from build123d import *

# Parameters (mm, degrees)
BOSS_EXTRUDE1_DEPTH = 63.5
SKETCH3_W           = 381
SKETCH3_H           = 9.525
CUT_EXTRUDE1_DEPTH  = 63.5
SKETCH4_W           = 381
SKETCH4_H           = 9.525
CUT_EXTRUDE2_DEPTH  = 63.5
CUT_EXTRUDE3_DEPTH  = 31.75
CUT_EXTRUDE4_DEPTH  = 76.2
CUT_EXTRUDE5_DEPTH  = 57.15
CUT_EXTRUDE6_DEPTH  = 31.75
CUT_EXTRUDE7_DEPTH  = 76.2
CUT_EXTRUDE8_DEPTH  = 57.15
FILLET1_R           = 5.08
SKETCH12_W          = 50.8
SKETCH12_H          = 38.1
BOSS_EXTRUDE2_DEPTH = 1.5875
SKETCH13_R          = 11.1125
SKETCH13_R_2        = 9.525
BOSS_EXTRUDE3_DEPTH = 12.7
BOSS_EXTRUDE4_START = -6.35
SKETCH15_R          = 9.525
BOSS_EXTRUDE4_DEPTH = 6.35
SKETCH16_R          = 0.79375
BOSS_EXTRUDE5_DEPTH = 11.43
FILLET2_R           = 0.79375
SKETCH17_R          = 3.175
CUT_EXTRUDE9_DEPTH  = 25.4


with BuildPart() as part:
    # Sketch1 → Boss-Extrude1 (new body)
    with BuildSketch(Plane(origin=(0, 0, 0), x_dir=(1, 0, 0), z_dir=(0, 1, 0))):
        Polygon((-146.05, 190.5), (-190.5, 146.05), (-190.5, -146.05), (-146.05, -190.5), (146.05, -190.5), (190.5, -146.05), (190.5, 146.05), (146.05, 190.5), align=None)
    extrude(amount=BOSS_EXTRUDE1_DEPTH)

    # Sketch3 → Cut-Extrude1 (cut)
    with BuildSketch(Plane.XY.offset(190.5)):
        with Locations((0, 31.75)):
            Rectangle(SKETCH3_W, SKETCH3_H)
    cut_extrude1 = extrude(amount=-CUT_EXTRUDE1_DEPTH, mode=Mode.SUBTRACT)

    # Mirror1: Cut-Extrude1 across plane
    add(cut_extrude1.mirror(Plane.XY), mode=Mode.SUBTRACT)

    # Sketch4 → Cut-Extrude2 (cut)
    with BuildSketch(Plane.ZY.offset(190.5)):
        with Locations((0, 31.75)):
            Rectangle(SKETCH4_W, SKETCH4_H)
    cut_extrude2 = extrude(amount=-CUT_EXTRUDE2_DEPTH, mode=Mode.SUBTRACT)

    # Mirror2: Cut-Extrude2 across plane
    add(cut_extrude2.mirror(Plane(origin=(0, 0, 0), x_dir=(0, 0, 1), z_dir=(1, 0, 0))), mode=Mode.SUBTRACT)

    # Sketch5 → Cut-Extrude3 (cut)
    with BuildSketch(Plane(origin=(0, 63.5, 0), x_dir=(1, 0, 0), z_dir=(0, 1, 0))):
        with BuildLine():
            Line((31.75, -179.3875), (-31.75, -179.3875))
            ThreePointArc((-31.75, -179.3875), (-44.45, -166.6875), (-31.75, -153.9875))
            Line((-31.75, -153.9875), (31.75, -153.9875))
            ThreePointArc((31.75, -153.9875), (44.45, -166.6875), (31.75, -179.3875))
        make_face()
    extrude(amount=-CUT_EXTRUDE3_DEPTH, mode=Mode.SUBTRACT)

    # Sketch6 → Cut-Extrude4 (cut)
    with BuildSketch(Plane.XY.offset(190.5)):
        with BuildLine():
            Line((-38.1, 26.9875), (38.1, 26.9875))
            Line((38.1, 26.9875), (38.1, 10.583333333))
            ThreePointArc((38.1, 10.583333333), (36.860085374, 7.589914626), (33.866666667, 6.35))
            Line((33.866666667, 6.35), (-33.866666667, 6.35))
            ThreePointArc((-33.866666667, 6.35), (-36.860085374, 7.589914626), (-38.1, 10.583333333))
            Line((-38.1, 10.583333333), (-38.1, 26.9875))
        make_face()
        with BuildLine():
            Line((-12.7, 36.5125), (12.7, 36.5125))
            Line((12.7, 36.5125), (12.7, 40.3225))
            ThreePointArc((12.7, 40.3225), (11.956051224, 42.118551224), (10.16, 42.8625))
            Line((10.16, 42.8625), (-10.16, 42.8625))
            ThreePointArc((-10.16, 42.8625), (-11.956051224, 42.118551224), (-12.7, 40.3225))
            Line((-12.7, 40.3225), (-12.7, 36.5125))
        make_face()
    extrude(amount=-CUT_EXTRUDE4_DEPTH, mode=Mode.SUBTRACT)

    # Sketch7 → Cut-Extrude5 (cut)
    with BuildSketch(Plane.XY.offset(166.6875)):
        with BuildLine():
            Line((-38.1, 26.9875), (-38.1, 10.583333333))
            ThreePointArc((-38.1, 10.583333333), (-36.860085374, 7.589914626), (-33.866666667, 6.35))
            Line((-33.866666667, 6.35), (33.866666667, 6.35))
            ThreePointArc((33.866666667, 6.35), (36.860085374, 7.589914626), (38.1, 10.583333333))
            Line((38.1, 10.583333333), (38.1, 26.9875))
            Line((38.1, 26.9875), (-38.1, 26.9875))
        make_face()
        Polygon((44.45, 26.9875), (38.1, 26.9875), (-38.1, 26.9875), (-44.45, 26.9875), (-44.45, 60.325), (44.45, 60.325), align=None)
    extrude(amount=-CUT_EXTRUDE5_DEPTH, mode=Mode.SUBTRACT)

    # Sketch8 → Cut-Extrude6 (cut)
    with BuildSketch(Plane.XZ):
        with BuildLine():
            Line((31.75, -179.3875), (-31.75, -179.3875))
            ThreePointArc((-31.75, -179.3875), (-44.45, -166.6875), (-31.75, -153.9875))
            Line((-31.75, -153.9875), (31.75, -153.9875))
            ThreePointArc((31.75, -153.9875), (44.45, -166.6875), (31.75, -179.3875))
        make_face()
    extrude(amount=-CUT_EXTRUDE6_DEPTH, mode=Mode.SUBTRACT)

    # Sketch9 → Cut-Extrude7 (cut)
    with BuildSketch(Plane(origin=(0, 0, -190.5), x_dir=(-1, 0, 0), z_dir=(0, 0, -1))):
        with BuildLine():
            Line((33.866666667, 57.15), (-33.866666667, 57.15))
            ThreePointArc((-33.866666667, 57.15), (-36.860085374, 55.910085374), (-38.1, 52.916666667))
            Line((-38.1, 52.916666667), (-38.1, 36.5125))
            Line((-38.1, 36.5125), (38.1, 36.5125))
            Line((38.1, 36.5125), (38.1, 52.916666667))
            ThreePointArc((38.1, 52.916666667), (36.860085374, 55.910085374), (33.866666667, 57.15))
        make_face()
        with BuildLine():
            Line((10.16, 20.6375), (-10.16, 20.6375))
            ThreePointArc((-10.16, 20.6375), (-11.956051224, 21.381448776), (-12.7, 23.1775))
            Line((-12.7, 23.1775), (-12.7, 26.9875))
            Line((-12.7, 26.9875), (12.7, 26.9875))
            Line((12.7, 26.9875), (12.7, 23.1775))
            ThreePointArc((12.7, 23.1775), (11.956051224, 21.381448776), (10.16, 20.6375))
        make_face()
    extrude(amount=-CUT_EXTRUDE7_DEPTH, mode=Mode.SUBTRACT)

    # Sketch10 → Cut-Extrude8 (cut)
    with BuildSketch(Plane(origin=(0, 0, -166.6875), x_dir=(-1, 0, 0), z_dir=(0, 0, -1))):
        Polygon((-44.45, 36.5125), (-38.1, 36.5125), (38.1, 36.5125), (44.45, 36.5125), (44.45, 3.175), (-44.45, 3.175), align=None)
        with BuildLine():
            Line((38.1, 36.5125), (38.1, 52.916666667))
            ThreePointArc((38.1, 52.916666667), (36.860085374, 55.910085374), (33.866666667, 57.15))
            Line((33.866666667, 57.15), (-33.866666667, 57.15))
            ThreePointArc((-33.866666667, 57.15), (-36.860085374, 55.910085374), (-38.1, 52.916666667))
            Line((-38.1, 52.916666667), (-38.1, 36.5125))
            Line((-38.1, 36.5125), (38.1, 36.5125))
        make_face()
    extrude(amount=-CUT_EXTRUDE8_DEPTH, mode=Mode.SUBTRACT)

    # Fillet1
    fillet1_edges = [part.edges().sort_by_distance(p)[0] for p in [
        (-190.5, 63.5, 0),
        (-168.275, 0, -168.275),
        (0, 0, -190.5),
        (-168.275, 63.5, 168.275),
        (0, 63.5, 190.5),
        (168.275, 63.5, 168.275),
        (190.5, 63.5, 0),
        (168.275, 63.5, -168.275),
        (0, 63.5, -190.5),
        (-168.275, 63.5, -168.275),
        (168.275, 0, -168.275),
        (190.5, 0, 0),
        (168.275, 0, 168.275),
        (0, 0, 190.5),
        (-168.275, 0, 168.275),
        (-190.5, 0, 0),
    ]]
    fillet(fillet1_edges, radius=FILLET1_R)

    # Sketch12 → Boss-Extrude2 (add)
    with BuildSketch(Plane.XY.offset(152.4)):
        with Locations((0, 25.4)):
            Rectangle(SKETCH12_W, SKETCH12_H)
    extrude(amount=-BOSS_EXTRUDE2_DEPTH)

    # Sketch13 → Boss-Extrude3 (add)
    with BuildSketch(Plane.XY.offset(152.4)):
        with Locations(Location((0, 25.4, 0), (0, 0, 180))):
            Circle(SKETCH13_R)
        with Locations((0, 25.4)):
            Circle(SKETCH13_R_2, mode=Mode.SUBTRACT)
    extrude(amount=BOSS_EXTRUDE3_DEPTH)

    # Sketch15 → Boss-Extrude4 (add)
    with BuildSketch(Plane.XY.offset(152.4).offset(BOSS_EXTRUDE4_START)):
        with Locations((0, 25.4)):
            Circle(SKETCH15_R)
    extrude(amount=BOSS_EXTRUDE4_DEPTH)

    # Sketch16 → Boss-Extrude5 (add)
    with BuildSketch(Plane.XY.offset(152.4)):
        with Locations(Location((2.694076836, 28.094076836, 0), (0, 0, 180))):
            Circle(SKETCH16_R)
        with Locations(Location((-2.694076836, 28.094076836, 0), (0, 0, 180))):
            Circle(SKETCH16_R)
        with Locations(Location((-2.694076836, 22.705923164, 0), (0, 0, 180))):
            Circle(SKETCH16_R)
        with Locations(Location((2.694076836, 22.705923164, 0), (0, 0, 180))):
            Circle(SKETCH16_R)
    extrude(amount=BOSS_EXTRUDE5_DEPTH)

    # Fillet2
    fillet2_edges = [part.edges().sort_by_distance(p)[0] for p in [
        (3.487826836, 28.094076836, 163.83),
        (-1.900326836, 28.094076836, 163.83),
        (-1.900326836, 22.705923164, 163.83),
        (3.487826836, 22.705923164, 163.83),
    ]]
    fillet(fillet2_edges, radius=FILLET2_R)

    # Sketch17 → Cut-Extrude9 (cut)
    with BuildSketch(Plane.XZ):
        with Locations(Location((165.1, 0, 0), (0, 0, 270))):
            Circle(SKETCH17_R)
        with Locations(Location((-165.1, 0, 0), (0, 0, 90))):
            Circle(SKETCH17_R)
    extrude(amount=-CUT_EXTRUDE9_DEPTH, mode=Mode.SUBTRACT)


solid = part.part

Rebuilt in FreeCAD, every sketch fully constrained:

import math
import FreeCAD as App
import Part
import Sketcher
Q = App.Units.Quantity


def edges_at(feature, points):
    """Names of the edges that pass closest to the given points."""
    edges = feature.Shape.Edges
    near = lambda p: min(range(len(edges)), key=lambda i: edges[i].distToShape(Part.Vertex(*p))[0])
    return sorted({f"Edge{near(p) + 1}" for p in points})


def add_polygon(sketch, points):
    """Adds a closed chain of lines whose ends are joined by coincident constraints."""
    first, n = sketch.GeometryCount, len(points)
    for a, b in zip(points, points[1:] + points[:1]):
        sketch.addGeometry(Part.LineSegment(App.Vector(*a, 0), App.Vector(*b, 0)), False)
    for i in range(n):
        sketch.addConstraint(Sketcher.Constraint("Coincident", first + i, 2, first + (i + 1) % n, 1))

doc = App.newDocument("Part")
params = doc.addObject("Spreadsheet::Sheet", "Params")
for row, (alias, value) in enumerate([
    ("sketch1_width", "11.5 in"),
    ("pad1_length", "2.5 in"),
    ("sketch2_width", "15 in"),
    ("sketch2_height", "0.375 in"),
    ("pocket1_length", "2.5 in"),
    ("sketch3_height", "15 in"),
    ("sketch3_width", "0.375 in"),
    ("pocket2_length", "2.5 in"),
    ("sketch4_radius", "0.5 in"),
    ("sketch4_width", "2.5 in"),
    ("pocket3_length", "1.25 in"),
    ("sketch5_radius", "0.1 in"),
    ("sketch5_width", "3 in"),
    ("sketch5_width2", "1 in"),
    ("sketch5_height", "0.15 in"),
    ("pocket4_length", "3 in"),
    ("sketch6_width", "3.5 in"),
    ("sketch6_height", "1.3125 in"),
    ("pocket5_length", "2.25 in"),
    ("sketch7_radius", "0.5 in"),
    ("sketch7_width", "2.5 in"),
    ("pocket6_length", "1.25 in"),
    ("sketch8_radius", "0.1 in"),
    ("sketch8_width", "3 in"),
    ("sketch8_width2", "1 in"),
    ("sketch8_height", "0.15 in"),
    ("pocket7_length", "3 in"),
    ("sketch9_width", "3.5 in"),
    ("sketch9_height", "1.3125 in"),
    ("pocket8_length", "2.25 in"),
    ("fillet_radius", "0.2 in"),
    ("sketch10_width", "2 in"),
    ("sketch10_height", "1.5 in"),
    ("pad2_length", "0.0625 in"),
    ("sketch11_diameter", "0.75 in"),
    ("sketch11_diameter2", "0.875 in"),
    ("pad3_length", "0.5 in"),
    ("sketch12_diameter", "0.75 in"),
    ("pad4_length", "0.25 in"),
    ("sketch13_diameter", "0.0625 in"),
    ("pad5_length", "0.45 in"),
    ("fillet2_radius", "0.03125 in"),
    ("sketch14_diameter", "0.25 in"),
    ("pocket9_length", "1 in"),
], start=1):
    params.set(f"A{row}", alias)
    params.set(f"B{row}", "=" + value)
    params.setAlias(f"B{row}", alias)

body = doc.addObject("PartDesign::Body", "Body")

sketch1 = doc.addObject("Sketcher::SketchObject", "Sketch")
body.addObject(sketch1)
sketch1.AttachmentSupport = (doc.XZ_Plane, [""])
sketch1.MapMode = "FlatFace"
add_polygon(sketch1, [(-146, -190), (-190, -146), (-190, 146), (-146, 190), (146, 190), (190, 146), (190, -146), (146, -190)])
sketch1.addConstraint([
    Sketcher.Constraint("Vertical", 1),
    Sketcher.Constraint("Horizontal", 3),
    Sketcher.Constraint("Vertical", 5),
    Sketcher.Constraint("Horizontal", 7),
    Sketcher.Constraint("Symmetric", 0, 2, 4, 2, -1, 1),
    Sketcher.Constraint("Symmetric", 2, 2, 6, 2, -1, 1),
    Sketcher.Constraint("Perpendicular", 0, 2),
    Sketcher.Constraint("Perpendicular", 2, 4),
    Sketcher.Constraint("Perpendicular", 4, 6),
    Sketcher.Constraint("Horizontal", 1, 2, 4, 2),
    Sketcher.Constraint("Vertical", 3, 2, 6, 2),
    Sketcher.Constraint("Equal", 7, 1),
    Sketcher.Constraint("DistanceX", 3, 1, 3, 2, Q("11.5 in")),
    Sketcher.Constraint("DistanceX", 1, 2, 4, 2, Q("15 in")),
])
sketch1.setExpression("Constraints[20]", "Params.sketch1_width")
pad1 = doc.addObject("PartDesign::Pad", "Pad")
body.addObject(pad1)
pad1.Profile = sketch1
pad1.setExpression("Length", "Params.pad1_length")
pad1.Reversed = True

sketch2 = doc.addObject("Sketcher::SketchObject", "Sketch001")
body.addObject(sketch2)
sketch2.AttachmentSupport = (doc.XY_Plane, [""])
sketch2.MapMode = "FlatFace"
sketch2.AttachmentOffset = App.Placement(App.Vector(0, 0, 7.5 * 25.4), App.Rotation())
add_polygon(sketch2, [(-190, 37), (-190, 27), (190, 27), (190, 37)])
sketch2.addConstraint([
    Sketcher.Constraint("Vertical", 0),
    Sketcher.Constraint("Horizontal", 1),
    Sketcher.Constraint("Vertical", 2),
    Sketcher.Constraint("Horizontal", 3),
    Sketcher.Constraint("DistanceX", 1, 1, 1, 2, Q("15 in")),
    Sketcher.Constraint("DistanceX", 0, 2, -1, 1, Q("7.5 in")),
    Sketcher.Constraint("DistanceY", 0, 2, 0, 1, Q("0.375 in")),
    Sketcher.Constraint("DistanceY", -1, 1, 0, 2, Q("1.0625 in")),
])
sketch2.setExpression("Constraints[8]", "Params.sketch2_width")
sketch2.setExpression("Constraints[10]", "Params.sketch2_height")
pocket1 = doc.addObject("PartDesign::Pocket", "Pocket")
body.addObject(pocket1)
pocket1.Profile = sketch2
pocket1.setExpression("Length", "Params.pocket1_length")
doc.recompute()

mirrored = doc.addObject("PartDesign::Mirrored", "Mirrored")
body.addObject(mirrored)
mirrored.Originals = [pocket1]
mirrored.MirrorPlane = (doc.XY_Plane, [""])
body.Tip = mirrored

sketch3 = doc.addObject("Sketcher::SketchObject", "Sketch002")
body.addObject(sketch3)
sketch3.AttachmentSupport = (doc.YZ_Plane, [""])
sketch3.MapMode = "FlatFace"
sketch3.AttachmentOffset = App.Placement(App.Vector(0, 0, -7.5 * 25.4), App.Rotation())
add_polygon(sketch3, [(37, -190), (27, -190), (27, 190), (37, 190)])
sketch3.addConstraint([
    Sketcher.Constraint("Horizontal", 0),
    Sketcher.Constraint("Vertical", 1),
    Sketcher.Constraint("Horizontal", 2),
    Sketcher.Constraint("Vertical", 3),
    Sketcher.Constraint("DistanceY", 1, 1, 1, 2, Q("15 in")),
    Sketcher.Constraint("DistanceY", 0, 2, -1, 1, Q("7.5 in")),
    Sketcher.Constraint("DistanceX", 0, 2, 0, 1, Q("0.375 in")),
    Sketcher.Constraint("DistanceX", -1, 1, 0, 2, Q("1.0625 in")),
])
sketch3.setExpression("Constraints[8]", "Params.sketch3_height")
sketch3.setExpression("Constraints[10]", "Params.sketch3_width")
pocket2 = doc.addObject("PartDesign::Pocket", "Pocket001")
body.addObject(pocket2)
pocket2.Profile = sketch3
pocket2.setExpression("Length", "Params.pocket2_length")
pocket2.Reversed = True
doc.recompute()

mirrored2 = doc.addObject("PartDesign::Mirrored", "Mirrored001")
body.addObject(mirrored2)
mirrored2.Originals = [pocket2]
mirrored2.MirrorPlane = (doc.YZ_Plane, [""])
body.Tip = mirrored2

sketch4 = doc.addObject("Sketcher::SketchObject", "Sketch003")
body.addObject(sketch4)
sketch4.AttachmentSupport = (doc.XZ_Plane, [""])
sketch4.MapMode = "FlatFace"
sketch4.AttachmentOffset = App.Placement(App.Vector(0, 0, -2.5 * 25.4), App.Rotation())
sketch4.addGeometry([
    Part.LineSegment(App.Vector(-32, 179, 0), App.Vector(32, 179, 0)),
    Part.ArcOfCircle(Part.Circle(App.Vector(32, 167, 0), App.Vector(0, 0, 1), 13), math.radians(-90), math.radians(90)),
    Part.LineSegment(App.Vector(32, 154, 0), App.Vector(-32, 154, 0)),
    Part.ArcOfCircle(Part.Circle(App.Vector(-32, 167, 0), App.Vector(0, 0, 1), 13), math.radians(90), math.radians(270)),
], False)
sketch4.addConstraint([
    Sketcher.Constraint("Tangent", 0, 2, 1, 2),
    Sketcher.Constraint("Tangent", 1, 1, 2, 1),
    Sketcher.Constraint("Tangent", 2, 2, 3, 2),
    Sketcher.Constraint("Tangent", 3, 1, 0, 1),
    Sketcher.Constraint("Horizontal", 0),
    Sketcher.Constraint("Horizontal", 2),
    Sketcher.Constraint("Radius", 1, Q("0.5 in")),
    Sketcher.Constraint("DistanceX", 0, 1, 0, 2, Q("2.5 in")),
    Sketcher.Constraint("DistanceX", -1, 1, 1, 3, Q("1.25 in")),
    Sketcher.Constraint("DistanceY", -1, 1, 1, 3, Q("6.5625 in")),
])
sketch4.setExpression("Constraints[6]", "Params.sketch4_radius")
sketch4.setExpression("Constraints[7]", "Params.sketch4_width")
pocket3 = doc.addObject("PartDesign::Pocket", "Pocket002")
body.addObject(pocket3)
pocket3.Profile = sketch4
pocket3.setExpression("Length", "Params.pocket3_length")
pocket3.Reversed = True

sketch5 = doc.addObject("Sketcher::SketchObject", "Sketch004")
body.addObject(sketch5)
sketch5.AttachmentSupport = (doc.XY_Plane, [""])
sketch5.MapMode = "FlatFace"
sketch5.AttachmentOffset = App.Placement(App.Vector(0, 0, 7.5 * 25.4), App.Rotation())
sketch5.addGeometry([
    Part.LineSegment(App.Vector(38.1, 27, 0), App.Vector(-38.1, 27, 0)),
    Part.LineSegment(App.Vector(-38.1, 27, 0), App.Vector(-38.1, 10.6, 0)),
    Part.ArcOfCircle(Part.Circle(App.Vector(-33.9, 10.6, 0), App.Vector(0, 0, 1), 4.2), math.radians(180), math.radians(270)),
    Part.LineSegment(App.Vector(-33.9, 6.3, 0), App.Vector(33.9, 6.3, 0)),
    Part.ArcOfCircle(Part.Circle(App.Vector(33.9, 10.6, 0), App.Vector(0, 0, 1), 4.2), math.radians(-90), math.radians(0)),
    Part.LineSegment(App.Vector(38.1, 10.6, 0), App.Vector(38.1, 27, 0)),
    Part.LineSegment(App.Vector(-12.7, 36.5, 0), App.Vector(12.7, 36.5, 0)),
    Part.LineSegment(App.Vector(12.7, 36.5, 0), App.Vector(12.7, 40.3, 0)),
    Part.ArcOfCircle(Part.Circle(App.Vector(10.2, 40.3, 0), App.Vector(0, 0, 1), 2.5), math.radians(0), math.radians(90)),
    Part.LineSegment(App.Vector(10.2, 42.9, 0), App.Vector(-10.2, 42.9, 0)),
    Part.ArcOfCircle(Part.Circle(App.Vector(-10.2, 40.3, 0), App.Vector(0, 0, 1), 2.5), math.radians(90), math.radians(180)),
    Part.LineSegment(App.Vector(-12.7, 40.3, 0), App.Vector(-12.7, 36.5, 0)),
], False)
sketch5.addConstraint([
    Sketcher.Constraint("Coincident", 0, 2, 1, 1),
    Sketcher.Constraint("Tangent", 1, 2, 2, 1),
    Sketcher.Constraint("Tangent", 2, 2, 3, 1),
    Sketcher.Constraint("Tangent", 3, 2, 4, 1),
    Sketcher.Constraint("Tangent", 4, 2, 5, 1),
    Sketcher.Constraint("Coincident", 5, 2, 0, 1),
    Sketcher.Constraint("Coincident", 6, 2, 7, 1),
    Sketcher.Constraint("Tangent", 7, 2, 8, 1),
    Sketcher.Constraint("Tangent", 8, 2, 9, 1),
    Sketcher.Constraint("Tangent", 9, 2, 10, 1),
    Sketcher.Constraint("Tangent", 10, 2, 11, 1),
    Sketcher.Constraint("Coincident", 11, 2, 6, 1),
    Sketcher.Constraint("Horizontal", 0),
    Sketcher.Constraint("Vertical", 1),
    Sketcher.Constraint("Horizontal", 3),
    Sketcher.Constraint("Vertical", 5),
    Sketcher.Constraint("Horizontal", 6),
    Sketcher.Constraint("Vertical", 7),
    Sketcher.Constraint("Horizontal", 9),
    Sketcher.Constraint("Vertical", 11),
    Sketcher.Constraint("Equal", 2, 4),
    Sketcher.Constraint("Equal", 8, 10),
    Sketcher.Constraint("Radius", 8, Q("0.1 in")),
    Sketcher.Constraint("DistanceX", 0, 2, 0, 1, Q("3 in")),
    Sketcher.Constraint("DistanceX", 6, 1, 6, 2, Q("1 in")),
    Sketcher.Constraint("DistanceX", 6, 2, 5, 2, Q("1 in")),
    Sketcher.Constraint("DistanceY", 7, 1, 7, 2, Q("0.15 in")),
    Sketcher.Constraint("DistanceX", -1, 1, 8, 3, Q("0.4 in")),
    Sketcher.Constraint("DistanceY", -1, 1, 2, 2, Q("0.25 in")),
    Sketcher.Constraint("DistanceY", -1, 1, 0, 2, Q("1.0625 in")),
    Sketcher.Constraint("DistanceY", -1, 1, 6, 2, Q("1.4375 in")),
    Sketcher.Constraint("Radius", 2, 4.233333),
])
sketch5.setExpression("Constraints[22]", "Params.sketch5_radius")
sketch5.setExpression("Constraints[23]", "Params.sketch5_width")
sketch5.setExpression("Constraints[24]", "Params.sketch5_width2")
sketch5.setExpression("Constraints[26]", "Params.sketch5_height")
pocket4 = doc.addObject("PartDesign::Pocket", "Pocket003")
body.addObject(pocket4)
pocket4.Profile = sketch5
pocket4.setExpression("Length", "Params.pocket4_length")

sketch6 = doc.addObject("Sketcher::SketchObject", "Sketch005")
body.addObject(sketch6)
sketch6.AttachmentSupport = (doc.XY_Plane, [""])
sketch6.MapMode = "FlatFace"
sketch6.AttachmentOffset = App.Placement(App.Vector(0, 0, 6.5625 * 25.4), App.Rotation())
sketch6.addGeometry([
    Part.LineSegment(App.Vector(-38.1, 27, 0), App.Vector(-38.1, 10.6, 0)),
    Part.ArcOfCircle(Part.Circle(App.Vector(-33.9, 10.6, 0), App.Vector(0, 0, 1), 4.2), math.radians(180), math.radians(270)),
    Part.LineSegment(App.Vector(-33.9, 6.3, 0), App.Vector(33.9, 6.3, 0)),
    Part.ArcOfCircle(Part.Circle(App.Vector(33.9, 10.6, 0), App.Vector(0, 0, 1), 4.2), math.radians(-90), math.radians(0)),
    Part.LineSegment(App.Vector(38.1, 10.6, 0), App.Vector(38.1, 27, 0)),
    Part.LineSegment(App.Vector(38.1, 27, 0), App.Vector(44.5, 27, 0)),
    Part.LineSegment(App.Vector(44.5, 27, 0), App.Vector(44.5, 60.3, 0)),
    Part.LineSegment(App.Vector(44.5, 60.3, 0), App.Vector(-44.5, 60.3, 0)),
    Part.LineSegment(App.Vector(-44.5, 60.3, 0), App.Vector(-44.5, 27, 0)),
    Part.LineSegment(App.Vector(-44.5, 27, 0), App.Vector(-38.1, 27, 0)),
], False)
sketch6.addConstraint([
    Sketcher.Constraint("Tangent", 0, 2, 1, 1),
    Sketcher.Constraint("Tangent", 1, 2, 2, 1),
    Sketcher.Constraint("Tangent", 2, 2, 3, 1),
    Sketcher.Constraint("Tangent", 3, 2, 4, 1),
    Sketcher.Constraint("Coincident", 4, 2, 5, 1),
    Sketcher.Constraint("Coincident", 5, 2, 6, 1),
    Sketcher.Constraint("Coincident", 6, 2, 7, 1),
    Sketcher.Constraint("Coincident", 7, 2, 8, 1),
    Sketcher.Constraint("Coincident", 8, 2, 9, 1),
    Sketcher.Constraint("Coincident", 9, 2, 0, 1),
    Sketcher.Constraint("Vertical", 0),
    Sketcher.Constraint("Horizontal", 2),
    Sketcher.Constraint("Vertical", 4),
    Sketcher.Constraint("Horizontal", 5),
    Sketcher.Constraint("Vertical", 6),
    Sketcher.Constraint("Horizontal", 7),
    Sketcher.Constraint("Vertical", 8),
    Sketcher.Constraint("Horizontal", 9),
    Sketcher.Constraint("Equal", 1, 3),
    Sketcher.Constraint("Symmetric", 5, 2, 8, 2, -2),
    Sketcher.Constraint("Equal", 5, 9),
    Sketcher.Constraint("DistanceX", 7, 2, 7, 1, Q("3.5 in")),
    Sketcher.Constraint("DistanceX", 0, 2, 3, 2, Q("3 in")),
    Sketcher.Constraint("DistanceY", 6, 1, 6, 2, Q("1.3125 in")),
    Sketcher.Constraint("DistanceY", -1, 1, 1, 2, Q("0.25 in")),
    Sketcher.Constraint("DistanceY", -1, 1, 4, 2, Q("1.0625 in")),
    Sketcher.Constraint("Radius", 1, 4.233333),
])
sketch6.setExpression("Constraints[21]", "Params.sketch6_width")
sketch6.setExpression("Constraints[23]", "Params.sketch6_height")
pocket5 = doc.addObject("PartDesign::Pocket", "Pocket004")
body.addObject(pocket5)
pocket5.Profile = sketch6
pocket5.setExpression("Length", "Params.pocket5_length")

sketch7 = doc.addObject("Sketcher::SketchObject", "Sketch006")
body.addObject(sketch7)
sketch7.AttachmentSupport = (doc.XZ_Plane, [""])
sketch7.MapMode = "FlatFace"
sketch7.addGeometry([
    Part.LineSegment(App.Vector(-32, -179, 0), App.Vector(32, -179, 0)),
    Part.ArcOfCircle(Part.Circle(App.Vector(32, -167, 0), App.Vector(0, 0, 1), 13), math.radians(-90), math.radians(90)),
    Part.LineSegment(App.Vector(32, -154, 0), App.Vector(-32, -154, 0)),
    Part.ArcOfCircle(Part.Circle(App.Vector(-32, -167, 0), App.Vector(0, 0, 1), 13), math.radians(90), math.radians(270)),
], False)
sketch7.addConstraint([
    Sketcher.Constraint("Tangent", 0, 2, 1, 1),
    Sketcher.Constraint("Tangent", 1, 2, 2, 1),
    Sketcher.Constraint("Tangent", 2, 2, 3, 1),
    Sketcher.Constraint("Tangent", 3, 2, 0, 1),
    Sketcher.Constraint("Horizontal", 0),
    Sketcher.Constraint("Horizontal", 2),
    Sketcher.Constraint("Radius", 1, Q("0.5 in")),
    Sketcher.Constraint("DistanceX", 0, 1, 0, 2, Q("2.5 in")),
    Sketcher.Constraint("DistanceX", -1, 1, 1, 3, Q("1.25 in")),
    Sketcher.Constraint("DistanceY", 1, 3, -1, 1, Q("6.5625 in")),
])
sketch7.setExpression("Constraints[6]", "Params.sketch7_radius")
sketch7.setExpression("Constraints[7]", "Params.sketch7_width")
pocket6 = doc.addObject("PartDesign::Pocket", "Pocket005")
body.addObject(pocket6)
pocket6.Profile = sketch7
pocket6.setExpression("Length", "Params.pocket6_length")

sketch8 = doc.addObject("Sketcher::SketchObject", "Sketch007")
body.addObject(sketch8)
sketch8.AttachmentSupport = (doc.XY_Plane, [""])
sketch8.MapMode = "FlatFace"
sketch8.AttachmentOffset = App.Placement(App.Vector(0, 0, -7.5 * 25.4), App.Rotation())
sketch8.addGeometry([
    Part.LineSegment(App.Vector(-33.9, 57.1, 0), App.Vector(33.9, 57.1, 0)),
    Part.ArcOfCircle(Part.Circle(App.Vector(33.9, 52.9, 0), App.Vector(0, 0, 1), 4.2), math.radians(0), math.radians(90)),
    Part.LineSegment(App.Vector(38.1, 52.9, 0), App.Vector(38.1, 36.5, 0)),
    Part.LineSegment(App.Vector(38.1, 36.5, 0), App.Vector(-38.1, 36.5, 0)),
    Part.LineSegment(App.Vector(-38.1, 36.5, 0), App.Vector(-38.1, 52.9, 0)),
    Part.ArcOfCircle(Part.Circle(App.Vector(-33.9, 52.9, 0), App.Vector(0, 0, 1), 4.2), math.radians(90), math.radians(180)),
    Part.LineSegment(App.Vector(10.2, 20.6, 0), App.Vector(-10.2, 20.6, 0)),
    Part.ArcOfCircle(Part.Circle(App.Vector(-10.2, 23.2, 0), App.Vector(0, 0, 1), 2.5), math.radians(-180), math.radians(-90)),
    Part.LineSegment(App.Vector(-12.7, 23.2, 0), App.Vector(-12.7, 27, 0)),
    Part.LineSegment(App.Vector(-12.7, 27, 0), App.Vector(12.7, 27, 0)),
    Part.LineSegment(App.Vector(12.7, 27, 0), App.Vector(12.7, 23.2, 0)),
    Part.ArcOfCircle(Part.Circle(App.Vector(10.2, 23.2, 0), App.Vector(0, 0, 1), 2.5), math.radians(-90), math.radians(0)),
], False)
sketch8.addConstraint([
    Sketcher.Constraint("Tangent", 0, 2, 1, 2),
    Sketcher.Constraint("Tangent", 1, 1, 2, 1),
    Sketcher.Constraint("Coincident", 2, 2, 3, 1),
    Sketcher.Constraint("Coincident", 3, 2, 4, 1),
    Sketcher.Constraint("Tangent", 4, 2, 5, 2),
    Sketcher.Constraint("Tangent", 5, 1, 0, 1),
    Sketcher.Constraint("Tangent", 6, 2, 7, 2),
    Sketcher.Constraint("Tangent", 7, 1, 8, 1),
    Sketcher.Constraint("Coincident", 8, 2, 9, 1),
    Sketcher.Constraint("Coincident", 9, 2, 10, 1),
    Sketcher.Constraint("Tangent", 10, 2, 11, 2),
    Sketcher.Constraint("Tangent", 11, 1, 6, 1),
    Sketcher.Constraint("Horizontal", 0),
    Sketcher.Constraint("Vertical", 2),
    Sketcher.Constraint("Horizontal", 3),
    Sketcher.Constraint("Vertical", 4),
    Sketcher.Constraint("Horizontal", 6),
    Sketcher.Constraint("Vertical", 8),
    Sketcher.Constraint("Horizontal", 9),
    Sketcher.Constraint("Vertical", 10),
    Sketcher.Constraint("Equal", 1, 5),
    Sketcher.Constraint("Equal", 7, 11),
    Sketcher.Constraint("Radius", 7, Q("0.1 in")),
    Sketcher.Constraint("DistanceX", 3, 2, 3, 1, Q("3 in")),
    Sketcher.Constraint("DistanceX", 9, 1, 9, 2, Q("1 in")),
    Sketcher.Constraint("DistanceX", 3, 2, 7, 1, Q("1 in")),
    Sketcher.Constraint("DistanceY", 8, 1, 8, 2, Q("0.15 in")),
    Sketcher.Constraint("DistanceX", 7, 3, -1, 1, Q("0.4 in")),
    Sketcher.Constraint("DistanceY", -1, 1, 0, 2, Q("2.25 in")),
    Sketcher.Constraint("DistanceY", -1, 1, 2, 2, Q("1.4375 in")),
    Sketcher.Constraint("DistanceY", -1, 1, 6, 2, Q("0.8125 in")),
    Sketcher.Constraint("Radius", 1, 4.233333),
])
sketch8.setExpression("Constraints[22]", "Params.sketch8_radius")
sketch8.setExpression("Constraints[23]", "Params.sketch8_width")
sketch8.setExpression("Constraints[24]", "Params.sketch8_width2")
sketch8.setExpression("Constraints[26]", "Params.sketch8_height")
pocket7 = doc.addObject("PartDesign::Pocket", "Pocket006")
body.addObject(pocket7)
pocket7.Profile = sketch8
pocket7.setExpression("Length", "Params.pocket7_length")
pocket7.Reversed = True

sketch9 = doc.addObject("Sketcher::SketchObject", "Sketch008")
body.addObject(sketch9)
sketch9.AttachmentSupport = (doc.XY_Plane, [""])
sketch9.MapMode = "FlatFace"
sketch9.AttachmentOffset = App.Placement(App.Vector(0, 0, -6.5625 * 25.4), App.Rotation())
sketch9.addGeometry([
    Part.LineSegment(App.Vector(-44.5, 36.5, 0), App.Vector(-38.1, 36.5, 0)),
    Part.LineSegment(App.Vector(-38.1, 36.5, 0), App.Vector(-38.1, 52.9, 0)),
    Part.ArcOfCircle(Part.Circle(App.Vector(-33.9, 52.9, 0), App.Vector(0, 0, 1), 4.2), math.radians(90), math.radians(180)),
    Part.LineSegment(App.Vector(-33.9, 57.1, 0), App.Vector(33.9, 57.1, 0)),
    Part.ArcOfCircle(Part.Circle(App.Vector(33.9, 52.9, 0), App.Vector(0, 0, 1), 4.2), math.radians(0), math.radians(90)),
    Part.LineSegment(App.Vector(38.1, 52.9, 0), App.Vector(38.1, 36.5, 0)),
    Part.LineSegment(App.Vector(38.1, 36.5, 0), App.Vector(44.5, 36.5, 0)),
    Part.LineSegment(App.Vector(44.5, 36.5, 0), App.Vector(44.5, 3.2, 0)),
    Part.LineSegment(App.Vector(44.5, 3.2, 0), App.Vector(-44.5, 3.2, 0)),
    Part.LineSegment(App.Vector(-44.5, 3.2, 0), App.Vector(-44.5, 36.5, 0)),
], False)
sketch9.addConstraint([
    Sketcher.Constraint("Coincident", 0, 2, 1, 1),
    Sketcher.Constraint("Tangent", 1, 2, 2, 2),
    Sketcher.Constraint("Tangent", 2, 1, 3, 1),
    Sketcher.Constraint("Tangent", 3, 2, 4, 2),
    Sketcher.Constraint("Tangent", 4, 1, 5, 1),
    Sketcher.Constraint("Coincident", 5, 2, 6, 1),
    Sketcher.Constraint("Coincident", 6, 2, 7, 1),
    Sketcher.Constraint("Coincident", 7, 2, 8, 1),
    Sketcher.Constraint("Coincident", 8, 2, 9, 1),
    Sketcher.Constraint("Coincident", 9, 2, 0, 1),
    Sketcher.Constraint("Horizontal", 0),
    Sketcher.Constraint("Vertical", 1),
    Sketcher.Constraint("Horizontal", 3),
    Sketcher.Constraint("Vertical", 5),
    Sketcher.Constraint("Horizontal", 6),
    Sketcher.Constraint("Vertical", 7),
    Sketcher.Constraint("Horizontal", 8),
    Sketcher.Constraint("Vertical", 9),
    Sketcher.Constraint("Equal", 2, 4),
    Sketcher.Constraint("Symmetric", 0, 2, 5, 2, -2),
    Sketcher.Constraint("Equal", 0, 6),
    Sketcher.Constraint("DistanceX", 8, 2, 8, 1, Q("3.5 in")),
    Sketcher.Constraint("DistanceX", 1, 2, 4, 1, Q("3 in")),
    Sketcher.Constraint("DistanceY", 7, 2, 7, 1, Q("1.3125 in")),
    Sketcher.Constraint("DistanceY", -1, 1, 2, 1, Q("2.25 in")),
    Sketcher.Constraint("DistanceY", -1, 1, 0, 2, Q("1.4375 in")),
    Sketcher.Constraint("Radius", 2, 4.233333),
])
sketch9.setExpression("Constraints[21]", "Params.sketch9_width")
sketch9.setExpression("Constraints[23]", "Params.sketch9_height")
pocket8 = doc.addObject("PartDesign::Pocket", "Pocket007")
body.addObject(pocket8)
pocket8.Profile = sketch9
pocket8.setExpression("Length", "Params.pocket8_length")
pocket8.Reversed = True
doc.recompute()

fillet = doc.addObject("PartDesign::Fillet", "Fillet")
body.addObject(fillet)
fillet.Base = (pocket8, edges_at(pocket8, [
    (-190.5, 63.5, 0),
    (-168.275, 0, -168.275),
    (0, 0, -190.5),
    (-168.275, 63.5, 168.275),
    (0, 63.5, 190.5),
    (168.275, 63.5, 168.275),
    (190.5, 63.5, 0),
    (168.275, 63.5, -168.275),
    (0, 63.5, -190.5),
    (-168.275, 63.5, -168.275),
    (168.275, 0, -168.275),
    (190.5, 0, 0),
    (168.275, 0, 168.275),
    (0, 0, 190.5),
    (-168.275, 0, 168.275),
    (-190.5, 0, 0),
]))
fillet.setExpression("Radius", "Params.fillet_radius")

sketch10 = doc.addObject("Sketcher::SketchObject", "Sketch009")
body.addObject(sketch10)
sketch10.AttachmentSupport = (doc.XY_Plane, [""])
sketch10.MapMode = "FlatFace"
sketch10.AttachmentOffset = App.Placement(App.Vector(0, 0, 6 * 25.4), App.Rotation())
add_polygon(sketch10, [(-25, 44), (-25, 6), (25, 6), (25, 44)])
sketch10.addConstraint([
    Sketcher.Constraint("Vertical", 0),
    Sketcher.Constraint("Horizontal", 1),
    Sketcher.Constraint("Vertical", 2),
    Sketcher.Constraint("Horizontal", 3),
    Sketcher.Constraint("DistanceX", 1, 1, 1, 2, Q("2 in")),
    Sketcher.Constraint("DistanceY", 0, 2, 0, 1, Q("1.5 in")),
    Sketcher.Constraint("DistanceX", 0, 2, -1, 1, Q("1 in")),
    Sketcher.Constraint("DistanceY", -1, 1, 0, 2, Q("0.25 in")),
])
sketch10.setExpression("Constraints[8]", "Params.sketch10_width")
sketch10.setExpression("Constraints[9]", "Params.sketch10_height")
pad2 = doc.addObject("PartDesign::Pad", "Pad001")
body.addObject(pad2)
pad2.Profile = sketch10
pad2.setExpression("Length", "Params.pad2_length")
pad2.Reversed = True

sketch11 = doc.addObject("Sketcher::SketchObject", "Sketch010")
body.addObject(sketch11)
sketch11.AttachmentSupport = (doc.XY_Plane, [""])
sketch11.MapMode = "FlatFace"
sketch11.AttachmentOffset = App.Placement(App.Vector(0, 0, 6 * 25.4), App.Rotation())
sketch11.addGeometry([
    Part.Circle(App.Vector(0, 25, 0), App.Vector(0, 0, 1), 11),
    Part.Circle(App.Vector(0, 25, 0), App.Vector(0, 0, 1), 10),
], False)
sketch11.addConstraint([
    Sketcher.Constraint("Coincident", 1, 3, 0, 3),
    Sketcher.Constraint("PointOnObject", 0, 3, -2),
    Sketcher.Constraint("Diameter", 1, Q("0.75 in")),
    Sketcher.Constraint("Diameter", 0, Q("0.875 in")),
    Sketcher.Constraint("DistanceY", -1, 1, 0, 3, Q("1 in")),
])
sketch11.setExpression("Constraints[2]", "Params.sketch11_diameter")
sketch11.setExpression("Constraints[3]", "Params.sketch11_diameter2")
pad3 = doc.addObject("PartDesign::Pad", "Pad002")
body.addObject(pad3)
pad3.Profile = sketch11
pad3.setExpression("Length", "Params.pad3_length")

sketch12 = doc.addObject("Sketcher::SketchObject", "Sketch011")
body.addObject(sketch12)
sketch12.AttachmentSupport = (doc.XY_Plane, [""])
sketch12.MapMode = "FlatFace"
sketch12.AttachmentOffset = App.Placement(App.Vector(0, 0, 5.75 * 25.4), App.Rotation())
sketch12.addGeometry(Part.Circle(App.Vector(0, 25, 0), App.Vector(0, 0, 1), 10), False)
sketch12.addConstraint([
    Sketcher.Constraint("PointOnObject", 0, 3, -2),
    Sketcher.Constraint("Diameter", 0, Q("0.75 in")),
    Sketcher.Constraint("DistanceY", -1, 1, 0, 3, Q("1 in")),
])
sketch12.setExpression("Constraints[1]", "Params.sketch12_diameter")
pad4 = doc.addObject("PartDesign::Pad", "Pad003")
body.addObject(pad4)
pad4.Profile = sketch12
pad4.setExpression("Length", "Params.pad4_length")

sketch13 = doc.addObject("Sketcher::SketchObject", "Sketch012")
body.addObject(sketch13)
sketch13.AttachmentSupport = (doc.XY_Plane, [""])
sketch13.MapMode = "FlatFace"
sketch13.AttachmentOffset = App.Placement(App.Vector(0, 0, 6 * 25.4), App.Rotation())
sketch13.addGeometry([
    Part.Circle(App.Vector(2.7, 28.1, 0), App.Vector(0, 0, 1), 0.8),
    Part.Circle(App.Vector(-2.7, 28.1, 0), App.Vector(0, 0, 1), 0.8),
    Part.Circle(App.Vector(-2.7, 22.7, 0), App.Vector(0, 0, 1), 0.8),
    Part.Circle(App.Vector(2.7, 22.7, 0), App.Vector(0, 0, 1), 0.8),
], False)
sketch13.addConstraint([
    Sketcher.Constraint("Equal", 0, 1),
    Sketcher.Constraint("Equal", 1, 2),
    Sketcher.Constraint("Equal", 2, 3),
    Sketcher.Constraint("Symmetric", 0, 3, 1, 3, -2),
    Sketcher.Constraint("Symmetric", 2, 3, 3, 3, -2),
    Sketcher.Constraint("Vertical", 1, 3, 2, 3),
    Sketcher.Constraint("Diameter", 0, Q("0.0625 in")),
    Sketcher.Constraint("DistanceX", -1, 1, 0, 3, 2.694077),
    Sketcher.Constraint("DistanceY", -1, 1, 0, 3, 28.094077),
    Sketcher.Constraint("DistanceY", -1, 1, 2, 3, 22.705923),
])
sketch13.setExpression("Constraints[6]", "Params.sketch13_diameter")
pad5 = doc.addObject("PartDesign::Pad", "Pad004")
body.addObject(pad5)
pad5.Profile = sketch13
pad5.setExpression("Length", "Params.pad5_length")
doc.recompute()

fillet2 = doc.addObject("PartDesign::Fillet", "Fillet001")
body.addObject(fillet2)
fillet2.Base = (pad5, edges_at(pad5, [
    (3.488, 28.094, 163.83),
    (-1.9, 28.094, 163.83),
    (-1.9, 22.706, 163.83),
    (3.488, 22.706, 163.83),
]))
fillet2.setExpression("Radius", "Params.fillet2_radius")

sketch14 = doc.addObject("Sketcher::SketchObject", "Sketch013")
body.addObject(sketch14)
sketch14.AttachmentSupport = (doc.XZ_Plane, [""])
sketch14.MapMode = "FlatFace"
sketch14.addGeometry([
    Part.Circle(App.Vector(165.1, 0, 0), App.Vector(0, 0, 1), 3.2),
    Part.Circle(App.Vector(-165.1, 0, 0), App.Vector(0, 0, 1), 3.2),
], False)
sketch14.addConstraint([
    Sketcher.Constraint("Equal", 0, 1),
    Sketcher.Constraint("Symmetric", 0, 3, 1, 3, -1, 1),
    Sketcher.Constraint("PointOnObject", 0, 3, -1),
    Sketcher.Constraint("Diameter", 0, Q("0.25 in")),
    Sketcher.Constraint("DistanceX", 1, 3, 0, 3, Q("13 in")),
])
sketch14.setExpression("Constraints[3]", "Params.sketch14_diameter")
pocket9 = doc.addObject("PartDesign::Pocket", "Pocket008")
body.addObject(pocket9)
pocket9.Profile = sketch14
pocket9.setExpression("Length", "Params.pocket9_length")

doc.recompute()
